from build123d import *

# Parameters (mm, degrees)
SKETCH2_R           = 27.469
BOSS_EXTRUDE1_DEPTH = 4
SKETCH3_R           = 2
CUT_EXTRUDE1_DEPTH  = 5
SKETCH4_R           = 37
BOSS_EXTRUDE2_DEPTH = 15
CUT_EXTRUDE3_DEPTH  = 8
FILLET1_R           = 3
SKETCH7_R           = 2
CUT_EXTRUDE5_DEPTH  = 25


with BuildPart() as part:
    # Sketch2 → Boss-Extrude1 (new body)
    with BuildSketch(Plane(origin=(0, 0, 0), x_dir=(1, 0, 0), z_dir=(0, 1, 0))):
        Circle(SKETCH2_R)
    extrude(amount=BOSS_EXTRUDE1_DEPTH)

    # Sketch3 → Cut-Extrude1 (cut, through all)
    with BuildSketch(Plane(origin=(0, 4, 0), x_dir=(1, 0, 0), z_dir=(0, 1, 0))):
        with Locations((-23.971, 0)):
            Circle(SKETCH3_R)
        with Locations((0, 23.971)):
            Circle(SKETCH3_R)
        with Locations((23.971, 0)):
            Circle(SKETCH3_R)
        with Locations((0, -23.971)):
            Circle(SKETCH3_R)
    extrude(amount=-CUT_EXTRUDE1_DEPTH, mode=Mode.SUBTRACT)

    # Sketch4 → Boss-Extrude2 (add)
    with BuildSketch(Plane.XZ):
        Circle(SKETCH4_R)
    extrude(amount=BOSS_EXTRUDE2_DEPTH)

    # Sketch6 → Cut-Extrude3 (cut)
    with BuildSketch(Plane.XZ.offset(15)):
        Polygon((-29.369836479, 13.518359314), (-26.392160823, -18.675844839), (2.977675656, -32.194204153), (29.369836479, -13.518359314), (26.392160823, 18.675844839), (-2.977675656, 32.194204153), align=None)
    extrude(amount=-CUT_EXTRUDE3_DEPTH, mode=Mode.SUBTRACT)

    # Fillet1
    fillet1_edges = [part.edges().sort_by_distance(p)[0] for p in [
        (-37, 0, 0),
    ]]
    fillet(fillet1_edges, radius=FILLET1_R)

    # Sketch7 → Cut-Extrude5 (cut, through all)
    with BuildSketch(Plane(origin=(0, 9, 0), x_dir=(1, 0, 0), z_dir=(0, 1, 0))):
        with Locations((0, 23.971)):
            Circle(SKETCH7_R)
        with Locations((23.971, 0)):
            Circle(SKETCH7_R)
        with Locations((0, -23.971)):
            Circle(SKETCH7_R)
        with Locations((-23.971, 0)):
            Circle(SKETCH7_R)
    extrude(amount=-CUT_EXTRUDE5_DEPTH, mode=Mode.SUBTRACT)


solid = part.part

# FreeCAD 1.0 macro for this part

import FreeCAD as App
import Part
import Sketcher

V = App.Vector
Q = App.Units.Quantity


def edges_at(feature, points):
    """Names of the edges that pass closest to the given points."""
    edges = feature.Shape.Edges
    near = lambda p: min(range(len(edges)), key=lambda i: edges[i].distToShape(Part.Vertex(*p))[0])
    return sorted({f"Edge{near(p) + 1}" for p in points})

doc = App.newDocument("Part")
body = doc.addObject("PartDesign::Body", "Body")

# Sketch on XZ plane
sketch1 = body.newObject("Sketcher::SketchObject", "Sketch")
sketch1.AttachmentSupport = (doc.getObject("XZ_Plane"), [""])
sketch1.MapMode = "FlatFace"
sketch1.addGeometry(Part.Circle(V(0, 0, 0), V(0, 0, 1), 27), False)
sketch1.addConstraint(Sketcher.Constraint("Coincident", 0, 3, -1, 1))
sketch1.addConstraint(Sketcher.Constraint("Diameter", 0, Q("54.938 mm")))
pad1 = body.newObject("PartDesign::Pad", "Pad")
pad1.Profile = sketch1
pad1.Length = 4
pad1.Reversed = True

# Sketch on XZ plane
sketch2 = body.newObject("Sketcher::SketchObject", "Sketch001")
sketch2.AttachmentSupport = (doc.getObject("XZ_Plane"), [""])
sketch2.MapMode = "FlatFace"
sketch2.AttachmentOffset = App.Placement(V(0, 0, -4), App.Rotation())
sketch2.addGeometry(Part.Circle(V(-24, 0, 0), V(0, 0, 1), 2), False)
sketch2.addGeometry(Part.Circle(V(0, -24, 0), V(0, 0, 1), 2), False)
sketch2.addGeometry(Part.Circle(V(24, 0, 0), V(0, 0, 1), 2), False)
sketch2.addGeometry(Part.Circle(V(0, 24, 0), V(0, 0, 1), 2), False)
sketch2.addConstraint(Sketcher.Constraint("Equal", 0, 1))
sketch2.addConstraint(Sketcher.Constraint("Equal", 1, 2))
sketch2.addConstraint(Sketcher.Constraint("Equal", 2, 3))
sketch2.addConstraint(Sketcher.Constraint("Symmetric", 0, 3, 2, 3, -1, 1))
sketch2.addConstraint(Sketcher.Constraint("Symmetric", 1, 3, 3, 3, -1, 1))
sketch2.addConstraint(Sketcher.Constraint("PointOnObject", 0, 3, -1))
sketch2.addConstraint(Sketcher.Constraint("PointOnObject", 1, 3, -2))
sketch2.addConstraint(Sketcher.Constraint("Diameter", 0, Q("4 mm")))
sketch2.addConstraint(Sketcher.Constraint("DistanceX", 0, 3, -1, 1, Q("23.971 mm")))
sketch2.addConstraint(Sketcher.Constraint("DistanceY", 1, 3, -1, 1, Q("23.971 mm")))
pocket1 = body.newObject("PartDesign::Pocket", "Pocket")
pocket1.Profile = sketch2
pocket1.Type = "ThroughAll"
pocket1.Reversed = True

# Sketch on XZ plane
sketch3 = body.newObject("Sketcher::SketchObject", "Sketch002")
sketch3.AttachmentSupport = (doc.getObject("XZ_Plane"), [""])
sketch3.MapMode = "FlatFace"
sketch3.addGeometry(Part.Circle(V(0, 0, 0), V(0, 0, 1), 37), False)
sketch3.addConstraint(Sketcher.Constraint("Coincident", 0, 3, -1, 1))
sketch3.addConstraint(Sketcher.Constraint("Diameter", 0, Q("74 mm")))
pad2 = body.newObject("PartDesign::Pad", "Pad001")
pad2.Profile = sketch3
pad2.Length = 15

# Sketch on XZ plane
sketch4 = body.newObject("Sketcher::SketchObject", "Sketch003")
sketch4.AttachmentSupport = (doc.getObject("XZ_Plane"), [""])
sketch4.MapMode = "FlatFace"
sketch4.AttachmentOffset = App.Placement(V(0, 0, 15), App.Rotation())
sketch4.addGeometry(Part.LineSegment(V(-29, 14, 0), V(-26, -19, 0)), False)
sketch4.addGeometry(Part.LineSegment(V(-26, -19, 0), V(3, -32, 0)), False)
sketch4.addGeometry(Part.LineSegment(V(3, -32, 0), V(29, -14, 0)), False)
sketch4.addGeometry(Part.LineSegment(V(29, -14, 0), V(26, 19, 0)), False)
sketch4.addGeometry(Part.LineSegment(V(26, 19, 0), V(-3, 32, 0)), False)
sketch4.addGeometry(Part.LineSegment(V(-3, 32, 0), V(-29, 14, 0)), False)
sketch4.addConstraint(Sketcher.Constraint("Coincident", 0, 2, 1, 1))
sketch4.addConstraint(Sketcher.Constraint("Coincident", 1, 2, 2, 1))
sketch4.addConstraint(Sketcher.Constraint("Coincident", 2, 2, 3, 1))
sketch4.addConstraint(Sketcher.Constraint("Coincident", 3, 2, 4, 1))
sketch4.addConstraint(Sketcher.Constraint("Coincident", 4, 2, 5, 1))
sketch4.addConstraint(Sketcher.Constraint("Coincident", 5, 2, 0, 1))
sketch4.addConstraint(Sketcher.Constraint("Symmetric", 0, 2, 3, 2, -1, 1))
sketch4.addConstraint(Sketcher.Constraint("Symmetric", 1, 2, 4, 2, -1, 1))
sketch4.addConstraint(Sketcher.Constraint("Symmetric", 2, 2, 5, 2, -1, 1))
sketch4.addConstraint(Sketcher.Constraint("Equal", 0, 1))
sketch4.addConstraint(Sketcher.Constraint("Equal", 1, 2))
sketch4.addConstraint(Sketcher.Constraint("DistanceX", 0, 2, -1, 1, Q("26.392161 mm")))
sketch4.addConstraint(Sketcher.Constraint("DistanceY", 2, 2, -1, 1, Q("13.518359 mm")))
sketch4.addConstraint(Sketcher.Constraint("DistanceY", 1, 2, 0, 2, Q("13.518359 mm")))
sketch4.addConstraint(Sketcher.Constraint("DistanceX", 1, 2, 2, 2, Q("26.392161 mm")))
pocket2 = body.newObject("PartDesign::Pocket", "Pocket001")
pocket2.Profile = sketch4
pocket2.Length = 8
doc.recompute()

fillet = body.newObject("PartDesign::Fillet", "Fillet")
fillet.Base = (pocket2, edges_at(pocket2, [(-37, 0, 0)]))
fillet.Radius = 3

# Sketch on XZ plane
sketch5 = body.newObject("Sketcher::SketchObject", "Sketch004")
sketch5.AttachmentSupport = (doc.getObject("XZ_Plane"), [""])
sketch5.MapMode = "FlatFace"
sketch5.AttachmentOffset = App.Placement(V(0, 0, -9), App.Rotation())
sketch5.addGeometry(Part.Circle(V(0, -24, 0), V(0, 0, 1), 2), False)
sketch5.addGeometry(Part.Circle(V(24, 0, 0), V(0, 0, 1), 2), False)
sketch5.addGeometry(Part.Circle(V(0, 24, 0), V(0, 0, 1), 2), False)
sketch5.addGeometry(Part.Circle(V(-24, 0, 0), V(0, 0, 1), 2), False)
sketch5.addConstraint(Sketcher.Constraint("Equal", 0, 1))
sketch5.addConstraint(Sketcher.Constraint("Equal", 1, 2))
sketch5.addConstraint(Sketcher.Constraint("Equal", 2, 3))
sketch5.addConstraint(Sketcher.Constraint("Symmetric", 0, 3, 2, 3, -1, 1))
sketch5.addConstraint(Sketcher.Constraint("Symmetric", 1, 3, 3, 3, -1, 1))
sketch5.addConstraint(Sketcher.Constraint("PointOnObject", 0, 3, -2))
sketch5.addConstraint(Sketcher.Constraint("PointOnObject", 1, 3, -1))
sketch5.addConstraint(Sketcher.Constraint("Diameter", 0, Q("4 mm")))
sketch5.addConstraint(Sketcher.Constraint("DistanceY", 0, 3, -1, 1, Q("23.971 mm")))
sketch5.addConstraint(Sketcher.Constraint("DistanceX", -1, 1, 1, 3, Q("23.971 mm")))
pocket3 = body.newObject("PartDesign::Pocket", "Pocket002")
pocket3.Profile = sketch5
pocket3.Type = "ThroughAll"
pocket3.Reversed = True

doc.recompute()
